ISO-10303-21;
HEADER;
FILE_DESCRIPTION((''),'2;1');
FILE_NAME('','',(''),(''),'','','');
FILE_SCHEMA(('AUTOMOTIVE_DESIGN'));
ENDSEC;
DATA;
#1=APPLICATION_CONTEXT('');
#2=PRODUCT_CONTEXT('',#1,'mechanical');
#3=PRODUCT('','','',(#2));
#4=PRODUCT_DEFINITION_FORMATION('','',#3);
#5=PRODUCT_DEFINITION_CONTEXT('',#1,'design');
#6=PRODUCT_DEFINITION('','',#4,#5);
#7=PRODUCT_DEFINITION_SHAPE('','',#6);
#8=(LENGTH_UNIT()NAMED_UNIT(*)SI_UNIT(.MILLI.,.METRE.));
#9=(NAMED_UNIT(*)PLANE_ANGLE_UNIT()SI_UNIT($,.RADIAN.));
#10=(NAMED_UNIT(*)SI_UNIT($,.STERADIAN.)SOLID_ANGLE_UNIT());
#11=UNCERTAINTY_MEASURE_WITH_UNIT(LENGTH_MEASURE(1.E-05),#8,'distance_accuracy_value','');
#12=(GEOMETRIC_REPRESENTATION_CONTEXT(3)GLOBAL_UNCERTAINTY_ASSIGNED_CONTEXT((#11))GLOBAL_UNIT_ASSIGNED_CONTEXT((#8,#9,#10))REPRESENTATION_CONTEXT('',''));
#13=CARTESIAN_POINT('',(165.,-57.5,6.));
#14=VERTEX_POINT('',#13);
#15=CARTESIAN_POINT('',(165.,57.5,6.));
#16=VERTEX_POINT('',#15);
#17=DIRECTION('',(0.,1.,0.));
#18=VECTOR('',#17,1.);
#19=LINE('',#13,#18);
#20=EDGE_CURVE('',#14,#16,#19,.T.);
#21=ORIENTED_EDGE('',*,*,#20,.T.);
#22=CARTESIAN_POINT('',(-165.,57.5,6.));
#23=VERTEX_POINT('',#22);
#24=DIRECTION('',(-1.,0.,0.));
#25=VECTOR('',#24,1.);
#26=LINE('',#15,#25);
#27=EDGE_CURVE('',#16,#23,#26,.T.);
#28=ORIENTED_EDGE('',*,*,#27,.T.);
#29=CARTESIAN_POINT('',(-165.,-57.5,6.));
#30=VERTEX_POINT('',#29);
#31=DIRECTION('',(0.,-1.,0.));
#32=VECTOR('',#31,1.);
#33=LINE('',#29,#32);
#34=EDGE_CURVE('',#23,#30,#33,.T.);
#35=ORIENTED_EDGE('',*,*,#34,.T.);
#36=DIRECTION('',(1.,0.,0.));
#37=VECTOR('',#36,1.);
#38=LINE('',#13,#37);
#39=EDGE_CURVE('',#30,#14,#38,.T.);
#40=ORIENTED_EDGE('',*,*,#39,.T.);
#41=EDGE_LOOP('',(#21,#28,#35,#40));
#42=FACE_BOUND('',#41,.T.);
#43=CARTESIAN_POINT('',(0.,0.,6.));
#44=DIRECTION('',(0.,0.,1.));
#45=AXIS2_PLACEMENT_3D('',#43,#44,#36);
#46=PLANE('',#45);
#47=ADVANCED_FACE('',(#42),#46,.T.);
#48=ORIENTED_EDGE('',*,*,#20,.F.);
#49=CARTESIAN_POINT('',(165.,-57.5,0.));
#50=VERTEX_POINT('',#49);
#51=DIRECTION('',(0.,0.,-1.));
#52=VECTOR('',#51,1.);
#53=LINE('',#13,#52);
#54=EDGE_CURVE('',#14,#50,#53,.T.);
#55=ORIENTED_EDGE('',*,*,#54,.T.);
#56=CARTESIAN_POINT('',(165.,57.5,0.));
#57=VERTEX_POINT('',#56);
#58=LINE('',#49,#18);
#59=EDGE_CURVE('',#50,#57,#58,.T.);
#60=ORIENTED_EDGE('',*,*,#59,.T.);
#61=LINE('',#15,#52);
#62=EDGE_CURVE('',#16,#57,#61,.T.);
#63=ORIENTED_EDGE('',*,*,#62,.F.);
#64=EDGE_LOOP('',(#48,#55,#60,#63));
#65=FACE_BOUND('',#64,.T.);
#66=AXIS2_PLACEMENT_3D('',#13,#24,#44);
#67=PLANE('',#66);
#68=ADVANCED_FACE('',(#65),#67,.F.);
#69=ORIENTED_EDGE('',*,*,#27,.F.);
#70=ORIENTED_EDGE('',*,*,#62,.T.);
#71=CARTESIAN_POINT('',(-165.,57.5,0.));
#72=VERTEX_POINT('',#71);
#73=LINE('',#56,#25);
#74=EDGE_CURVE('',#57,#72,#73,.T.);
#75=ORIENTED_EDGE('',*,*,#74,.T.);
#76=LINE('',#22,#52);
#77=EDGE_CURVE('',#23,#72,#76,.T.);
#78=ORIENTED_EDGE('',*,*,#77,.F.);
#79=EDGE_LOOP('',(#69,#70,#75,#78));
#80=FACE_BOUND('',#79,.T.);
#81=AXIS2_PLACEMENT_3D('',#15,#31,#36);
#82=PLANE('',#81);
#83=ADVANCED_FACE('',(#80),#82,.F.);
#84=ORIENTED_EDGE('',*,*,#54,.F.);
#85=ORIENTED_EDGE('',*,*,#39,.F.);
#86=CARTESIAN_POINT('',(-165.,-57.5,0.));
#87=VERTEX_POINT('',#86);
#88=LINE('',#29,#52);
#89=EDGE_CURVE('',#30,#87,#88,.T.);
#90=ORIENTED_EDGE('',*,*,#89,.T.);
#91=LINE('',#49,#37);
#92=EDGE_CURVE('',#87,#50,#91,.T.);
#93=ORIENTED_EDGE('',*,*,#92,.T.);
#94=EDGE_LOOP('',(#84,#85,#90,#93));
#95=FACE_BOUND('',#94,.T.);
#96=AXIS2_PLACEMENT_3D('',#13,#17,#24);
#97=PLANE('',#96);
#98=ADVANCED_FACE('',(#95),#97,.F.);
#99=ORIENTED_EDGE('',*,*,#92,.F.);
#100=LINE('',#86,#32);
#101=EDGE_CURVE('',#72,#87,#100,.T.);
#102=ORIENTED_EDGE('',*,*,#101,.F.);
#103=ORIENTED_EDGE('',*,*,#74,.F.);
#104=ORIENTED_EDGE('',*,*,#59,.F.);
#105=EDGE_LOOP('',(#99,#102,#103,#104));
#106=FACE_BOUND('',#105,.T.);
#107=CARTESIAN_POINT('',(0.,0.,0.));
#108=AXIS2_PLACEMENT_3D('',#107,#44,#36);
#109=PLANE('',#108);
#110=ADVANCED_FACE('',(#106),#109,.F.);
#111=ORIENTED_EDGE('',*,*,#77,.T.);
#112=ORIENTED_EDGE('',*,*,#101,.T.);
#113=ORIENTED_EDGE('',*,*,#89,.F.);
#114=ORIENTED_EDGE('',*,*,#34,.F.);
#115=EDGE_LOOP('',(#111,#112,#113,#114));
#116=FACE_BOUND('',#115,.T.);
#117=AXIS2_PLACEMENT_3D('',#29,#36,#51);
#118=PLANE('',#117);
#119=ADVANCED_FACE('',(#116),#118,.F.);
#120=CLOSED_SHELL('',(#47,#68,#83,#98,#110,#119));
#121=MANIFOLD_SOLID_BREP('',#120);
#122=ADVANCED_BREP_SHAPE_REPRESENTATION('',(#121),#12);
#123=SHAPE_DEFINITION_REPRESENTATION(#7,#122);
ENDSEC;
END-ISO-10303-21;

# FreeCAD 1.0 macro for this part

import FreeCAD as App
import Part
import Sketcher
from FreeCAD import Vector
Q = App.Units.Quantity

doc = App.newDocument("Part")
body = doc.addObject("PartDesign::Body", "Body")

sketch1 = body.newObject("Sketcher::SketchObject", "Sketch")
sketch1.AttachmentSupport = (doc.getObject("XY_Plane"), [""])
sketch1.MapMode = "FlatFace"
sketch1.addGeometry([
    Part.LineSegment(Vector(-165, 58, 0), Vector(-165, -58, 0)),
    Part.LineSegment(Vector(-165, -58, 0), Vector(165, -58, 0)),
    Part.LineSegment(Vector(165, -58, 0), Vector(165, 58, 0)),
    Part.LineSegment(Vector(165, 58, 0), Vector(-165, 58, 0)),
], False)
sketch1.addConstraint([
    Sketcher.Constraint("Coincident", 0, 2, 1, 1),
    Sketcher.Constraint("Coincident", 1, 2, 2, 1),
    Sketcher.Constraint("Coincident", 2, 2, 3, 1),
    Sketcher.Constraint("Coincident", 3, 2, 0, 1),
    Sketcher.Constraint("Vertical", 0),
    Sketcher.Constraint("Horizontal", 1),
    Sketcher.Constraint("Vertical", 2),
    Sketcher.Constraint("Horizontal", 3),
    Sketcher.Constraint("Symmetric", 0, 2, 2, 2, -1, 1),
    Sketcher.Constraint("DistanceX", 1, 1, 1, 2, Q("330 mm")),
    Sketcher.Constraint("DistanceY", 0, 2, 0, 1, Q("115 mm")),
])
pad1 = body.newObject("PartDesign::Pad", "Pad")
pad1.Profile = sketch1
pad1.Length = 6

doc.recompute()
